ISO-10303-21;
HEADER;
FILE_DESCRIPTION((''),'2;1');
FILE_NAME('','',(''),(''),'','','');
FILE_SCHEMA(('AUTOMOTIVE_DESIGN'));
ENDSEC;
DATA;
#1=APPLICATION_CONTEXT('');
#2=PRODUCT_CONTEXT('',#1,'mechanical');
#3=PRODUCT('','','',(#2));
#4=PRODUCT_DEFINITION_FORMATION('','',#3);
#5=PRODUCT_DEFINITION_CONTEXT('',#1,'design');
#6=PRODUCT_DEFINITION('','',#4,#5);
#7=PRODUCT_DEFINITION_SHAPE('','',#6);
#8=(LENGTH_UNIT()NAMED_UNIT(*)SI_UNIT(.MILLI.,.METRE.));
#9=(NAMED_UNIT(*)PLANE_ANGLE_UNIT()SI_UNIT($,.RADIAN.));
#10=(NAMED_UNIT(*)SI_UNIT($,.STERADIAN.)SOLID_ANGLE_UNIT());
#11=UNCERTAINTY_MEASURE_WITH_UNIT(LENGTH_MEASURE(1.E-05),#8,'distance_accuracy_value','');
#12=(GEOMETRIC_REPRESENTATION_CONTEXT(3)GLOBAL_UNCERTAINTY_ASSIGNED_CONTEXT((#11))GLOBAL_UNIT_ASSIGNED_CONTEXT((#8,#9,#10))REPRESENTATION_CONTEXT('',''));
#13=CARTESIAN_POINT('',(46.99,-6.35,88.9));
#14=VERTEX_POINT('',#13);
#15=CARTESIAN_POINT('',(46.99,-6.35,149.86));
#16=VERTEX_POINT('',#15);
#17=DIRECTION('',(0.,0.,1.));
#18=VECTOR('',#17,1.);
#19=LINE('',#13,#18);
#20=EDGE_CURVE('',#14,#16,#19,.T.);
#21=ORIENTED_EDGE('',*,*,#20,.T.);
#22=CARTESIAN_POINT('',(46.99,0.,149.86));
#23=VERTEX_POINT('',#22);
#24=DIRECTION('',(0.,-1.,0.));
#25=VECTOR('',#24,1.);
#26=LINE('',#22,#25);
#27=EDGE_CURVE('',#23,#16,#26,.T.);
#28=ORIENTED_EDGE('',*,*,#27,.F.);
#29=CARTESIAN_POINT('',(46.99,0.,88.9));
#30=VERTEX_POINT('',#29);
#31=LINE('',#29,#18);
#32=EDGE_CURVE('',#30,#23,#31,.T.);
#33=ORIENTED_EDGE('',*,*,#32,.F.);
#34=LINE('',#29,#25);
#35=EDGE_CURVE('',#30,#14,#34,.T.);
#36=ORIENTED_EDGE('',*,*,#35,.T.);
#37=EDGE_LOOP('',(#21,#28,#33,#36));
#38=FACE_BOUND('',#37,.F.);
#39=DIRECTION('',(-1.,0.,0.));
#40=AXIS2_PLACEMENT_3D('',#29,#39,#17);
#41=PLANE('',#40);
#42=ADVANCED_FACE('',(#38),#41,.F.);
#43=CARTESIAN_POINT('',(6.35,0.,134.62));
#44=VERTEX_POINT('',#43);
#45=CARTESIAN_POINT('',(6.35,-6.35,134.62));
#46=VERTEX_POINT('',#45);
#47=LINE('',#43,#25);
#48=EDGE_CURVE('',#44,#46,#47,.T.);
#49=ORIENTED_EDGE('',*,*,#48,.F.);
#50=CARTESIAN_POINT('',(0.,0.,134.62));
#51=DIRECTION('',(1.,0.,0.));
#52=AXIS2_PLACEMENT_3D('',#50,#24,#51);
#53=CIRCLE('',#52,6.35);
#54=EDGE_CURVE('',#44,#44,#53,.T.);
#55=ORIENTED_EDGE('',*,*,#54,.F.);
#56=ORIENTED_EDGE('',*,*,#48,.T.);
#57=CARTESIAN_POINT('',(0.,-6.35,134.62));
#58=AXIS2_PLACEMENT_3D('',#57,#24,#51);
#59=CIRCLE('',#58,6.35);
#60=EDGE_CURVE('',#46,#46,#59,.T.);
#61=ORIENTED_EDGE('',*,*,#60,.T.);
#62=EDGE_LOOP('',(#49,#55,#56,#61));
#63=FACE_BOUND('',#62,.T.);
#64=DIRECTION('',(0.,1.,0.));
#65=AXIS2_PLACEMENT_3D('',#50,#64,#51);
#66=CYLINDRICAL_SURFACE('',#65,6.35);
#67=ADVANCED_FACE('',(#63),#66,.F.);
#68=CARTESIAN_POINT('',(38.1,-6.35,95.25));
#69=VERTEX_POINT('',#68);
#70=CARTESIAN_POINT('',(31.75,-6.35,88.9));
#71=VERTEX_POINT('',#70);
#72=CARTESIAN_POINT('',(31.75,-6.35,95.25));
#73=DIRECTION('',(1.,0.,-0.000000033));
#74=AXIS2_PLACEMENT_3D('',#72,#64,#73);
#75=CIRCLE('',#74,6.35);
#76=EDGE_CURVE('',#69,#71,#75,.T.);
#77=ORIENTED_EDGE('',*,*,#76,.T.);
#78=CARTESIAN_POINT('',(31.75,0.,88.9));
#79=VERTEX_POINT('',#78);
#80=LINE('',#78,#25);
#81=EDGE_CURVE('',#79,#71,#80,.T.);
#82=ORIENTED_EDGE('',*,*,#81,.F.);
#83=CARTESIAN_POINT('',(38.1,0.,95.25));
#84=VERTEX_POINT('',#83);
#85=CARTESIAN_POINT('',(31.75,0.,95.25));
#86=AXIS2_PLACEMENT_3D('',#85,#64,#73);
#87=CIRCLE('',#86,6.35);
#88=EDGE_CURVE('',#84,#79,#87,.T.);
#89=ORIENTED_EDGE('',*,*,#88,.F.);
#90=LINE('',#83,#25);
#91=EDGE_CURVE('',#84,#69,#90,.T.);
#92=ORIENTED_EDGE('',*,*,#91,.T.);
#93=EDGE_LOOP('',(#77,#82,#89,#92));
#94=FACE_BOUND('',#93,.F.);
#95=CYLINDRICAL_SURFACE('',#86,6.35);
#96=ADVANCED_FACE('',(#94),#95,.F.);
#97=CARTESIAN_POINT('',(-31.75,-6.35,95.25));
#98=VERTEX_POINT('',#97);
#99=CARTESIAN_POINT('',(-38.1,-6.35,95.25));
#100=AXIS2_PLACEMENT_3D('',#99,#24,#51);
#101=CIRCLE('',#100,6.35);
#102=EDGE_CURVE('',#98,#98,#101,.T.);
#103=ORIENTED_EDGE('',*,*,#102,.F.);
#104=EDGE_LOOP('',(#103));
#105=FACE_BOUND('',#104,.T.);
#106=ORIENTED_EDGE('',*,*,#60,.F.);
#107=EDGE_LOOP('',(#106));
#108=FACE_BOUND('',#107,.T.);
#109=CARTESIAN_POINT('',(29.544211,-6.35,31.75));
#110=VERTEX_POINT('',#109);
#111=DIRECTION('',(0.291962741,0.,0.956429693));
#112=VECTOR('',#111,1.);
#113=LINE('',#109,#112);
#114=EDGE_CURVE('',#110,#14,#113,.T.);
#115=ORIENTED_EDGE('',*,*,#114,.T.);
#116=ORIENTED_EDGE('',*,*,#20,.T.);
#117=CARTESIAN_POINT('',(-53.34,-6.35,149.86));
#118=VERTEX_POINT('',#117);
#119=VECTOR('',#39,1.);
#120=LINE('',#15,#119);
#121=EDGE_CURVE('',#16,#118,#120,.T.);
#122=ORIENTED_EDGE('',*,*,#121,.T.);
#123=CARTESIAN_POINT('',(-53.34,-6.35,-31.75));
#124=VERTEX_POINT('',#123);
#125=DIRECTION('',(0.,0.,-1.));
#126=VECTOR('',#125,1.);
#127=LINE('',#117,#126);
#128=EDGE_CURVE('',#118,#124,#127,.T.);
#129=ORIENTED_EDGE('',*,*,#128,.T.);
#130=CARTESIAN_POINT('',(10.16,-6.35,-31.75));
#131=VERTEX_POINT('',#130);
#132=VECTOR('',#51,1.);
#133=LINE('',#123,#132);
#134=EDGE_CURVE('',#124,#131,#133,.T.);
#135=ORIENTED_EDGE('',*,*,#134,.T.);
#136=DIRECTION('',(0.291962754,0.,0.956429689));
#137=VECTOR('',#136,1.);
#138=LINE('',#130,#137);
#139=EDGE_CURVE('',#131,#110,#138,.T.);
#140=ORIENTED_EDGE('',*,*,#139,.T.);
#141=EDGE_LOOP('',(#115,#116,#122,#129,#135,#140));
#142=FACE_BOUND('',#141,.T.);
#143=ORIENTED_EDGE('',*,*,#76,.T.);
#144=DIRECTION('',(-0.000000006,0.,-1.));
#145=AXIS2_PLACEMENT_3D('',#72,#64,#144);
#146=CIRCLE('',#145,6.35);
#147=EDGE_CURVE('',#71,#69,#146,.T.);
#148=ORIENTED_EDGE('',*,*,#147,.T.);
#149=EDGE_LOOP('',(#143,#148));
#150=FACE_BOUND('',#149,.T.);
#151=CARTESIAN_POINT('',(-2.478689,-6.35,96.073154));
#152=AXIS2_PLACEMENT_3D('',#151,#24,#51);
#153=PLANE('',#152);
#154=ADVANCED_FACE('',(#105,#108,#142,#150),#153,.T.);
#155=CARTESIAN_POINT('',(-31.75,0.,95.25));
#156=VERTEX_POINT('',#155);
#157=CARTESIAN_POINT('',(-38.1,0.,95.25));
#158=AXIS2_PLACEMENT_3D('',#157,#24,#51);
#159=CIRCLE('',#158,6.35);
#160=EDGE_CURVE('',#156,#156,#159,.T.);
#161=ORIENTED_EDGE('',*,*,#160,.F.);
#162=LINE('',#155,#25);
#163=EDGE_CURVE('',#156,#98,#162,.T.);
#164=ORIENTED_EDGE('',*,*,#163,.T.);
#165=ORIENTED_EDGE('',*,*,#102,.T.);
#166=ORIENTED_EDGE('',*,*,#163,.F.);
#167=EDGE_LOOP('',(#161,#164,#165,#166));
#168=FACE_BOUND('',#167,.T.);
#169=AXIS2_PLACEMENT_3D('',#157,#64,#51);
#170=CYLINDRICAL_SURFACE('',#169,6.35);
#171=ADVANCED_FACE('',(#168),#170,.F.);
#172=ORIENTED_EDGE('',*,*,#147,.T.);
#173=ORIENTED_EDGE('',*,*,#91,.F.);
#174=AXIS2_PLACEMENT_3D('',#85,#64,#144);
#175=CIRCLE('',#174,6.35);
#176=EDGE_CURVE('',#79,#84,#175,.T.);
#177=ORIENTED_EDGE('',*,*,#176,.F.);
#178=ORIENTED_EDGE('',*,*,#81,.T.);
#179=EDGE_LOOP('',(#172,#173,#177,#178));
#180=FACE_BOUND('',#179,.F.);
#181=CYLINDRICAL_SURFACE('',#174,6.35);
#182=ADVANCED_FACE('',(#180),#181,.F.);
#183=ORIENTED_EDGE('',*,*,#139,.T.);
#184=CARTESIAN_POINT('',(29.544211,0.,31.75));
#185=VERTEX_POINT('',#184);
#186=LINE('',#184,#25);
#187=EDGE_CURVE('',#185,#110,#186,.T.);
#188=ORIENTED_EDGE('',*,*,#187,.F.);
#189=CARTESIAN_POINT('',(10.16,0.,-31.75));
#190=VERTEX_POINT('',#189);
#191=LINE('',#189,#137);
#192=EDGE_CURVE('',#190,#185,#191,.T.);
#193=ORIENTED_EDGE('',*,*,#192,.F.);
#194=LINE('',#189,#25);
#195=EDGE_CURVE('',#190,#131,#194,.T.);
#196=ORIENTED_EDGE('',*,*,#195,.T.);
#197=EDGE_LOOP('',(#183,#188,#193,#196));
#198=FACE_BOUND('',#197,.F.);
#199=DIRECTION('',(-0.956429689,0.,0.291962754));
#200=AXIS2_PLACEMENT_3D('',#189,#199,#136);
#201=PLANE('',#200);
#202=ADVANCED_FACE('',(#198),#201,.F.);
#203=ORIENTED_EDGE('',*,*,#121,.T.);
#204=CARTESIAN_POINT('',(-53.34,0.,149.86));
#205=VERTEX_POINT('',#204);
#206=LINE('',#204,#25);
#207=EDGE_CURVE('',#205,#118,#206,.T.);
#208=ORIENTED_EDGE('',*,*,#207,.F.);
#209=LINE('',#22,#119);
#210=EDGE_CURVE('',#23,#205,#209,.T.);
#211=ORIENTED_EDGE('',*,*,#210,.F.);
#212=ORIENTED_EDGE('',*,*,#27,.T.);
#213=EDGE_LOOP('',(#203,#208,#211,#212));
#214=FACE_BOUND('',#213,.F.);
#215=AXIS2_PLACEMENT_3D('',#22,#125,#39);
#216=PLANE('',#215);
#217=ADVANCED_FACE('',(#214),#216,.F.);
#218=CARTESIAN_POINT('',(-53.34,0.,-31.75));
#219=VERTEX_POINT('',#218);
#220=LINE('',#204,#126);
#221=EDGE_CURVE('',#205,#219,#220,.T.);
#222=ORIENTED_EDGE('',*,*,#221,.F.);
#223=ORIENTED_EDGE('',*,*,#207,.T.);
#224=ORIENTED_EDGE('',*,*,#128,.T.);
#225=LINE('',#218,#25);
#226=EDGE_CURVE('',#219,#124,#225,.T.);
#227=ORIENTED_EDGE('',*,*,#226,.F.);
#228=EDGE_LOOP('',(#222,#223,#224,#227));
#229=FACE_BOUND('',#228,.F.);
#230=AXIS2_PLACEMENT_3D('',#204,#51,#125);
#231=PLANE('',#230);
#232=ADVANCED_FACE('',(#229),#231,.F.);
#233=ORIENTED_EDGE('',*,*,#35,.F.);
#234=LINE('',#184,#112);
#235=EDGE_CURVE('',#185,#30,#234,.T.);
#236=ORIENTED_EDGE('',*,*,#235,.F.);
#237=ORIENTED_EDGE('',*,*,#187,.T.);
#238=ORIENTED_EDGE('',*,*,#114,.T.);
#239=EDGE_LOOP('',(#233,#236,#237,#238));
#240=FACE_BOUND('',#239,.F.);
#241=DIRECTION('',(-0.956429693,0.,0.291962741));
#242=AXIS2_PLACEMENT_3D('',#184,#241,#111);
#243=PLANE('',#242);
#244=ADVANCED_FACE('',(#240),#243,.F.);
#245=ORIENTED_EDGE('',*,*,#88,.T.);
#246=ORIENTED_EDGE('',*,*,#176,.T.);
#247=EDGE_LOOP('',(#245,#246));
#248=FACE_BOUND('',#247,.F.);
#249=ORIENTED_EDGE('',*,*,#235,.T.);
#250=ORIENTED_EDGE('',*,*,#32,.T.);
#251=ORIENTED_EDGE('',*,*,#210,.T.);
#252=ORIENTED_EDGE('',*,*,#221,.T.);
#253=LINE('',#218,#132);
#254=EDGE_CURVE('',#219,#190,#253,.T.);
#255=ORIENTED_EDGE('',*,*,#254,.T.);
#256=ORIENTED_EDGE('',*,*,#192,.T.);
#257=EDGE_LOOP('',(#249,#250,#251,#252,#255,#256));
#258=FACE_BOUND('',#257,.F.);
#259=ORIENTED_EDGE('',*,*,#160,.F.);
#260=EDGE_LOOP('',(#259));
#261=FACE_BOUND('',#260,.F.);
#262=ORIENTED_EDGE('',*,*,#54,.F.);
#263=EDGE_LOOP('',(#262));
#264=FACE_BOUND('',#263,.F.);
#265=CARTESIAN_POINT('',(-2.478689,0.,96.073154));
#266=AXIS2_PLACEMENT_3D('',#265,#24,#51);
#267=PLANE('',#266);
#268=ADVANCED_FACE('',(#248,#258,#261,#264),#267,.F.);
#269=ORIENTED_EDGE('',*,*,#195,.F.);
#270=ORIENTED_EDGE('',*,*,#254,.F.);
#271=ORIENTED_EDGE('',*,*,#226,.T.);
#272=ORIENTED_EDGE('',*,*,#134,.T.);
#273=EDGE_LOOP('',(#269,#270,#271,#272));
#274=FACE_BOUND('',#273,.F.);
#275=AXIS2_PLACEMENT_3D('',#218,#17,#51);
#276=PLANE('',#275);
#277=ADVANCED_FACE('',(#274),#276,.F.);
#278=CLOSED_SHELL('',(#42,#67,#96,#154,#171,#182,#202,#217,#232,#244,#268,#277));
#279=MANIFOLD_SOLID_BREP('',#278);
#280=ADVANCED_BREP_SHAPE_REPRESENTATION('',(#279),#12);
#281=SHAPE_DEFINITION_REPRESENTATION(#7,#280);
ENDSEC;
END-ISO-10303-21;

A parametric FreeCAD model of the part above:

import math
import FreeCAD as App
import Part
import Sketcher
Q = App.Units.Quantity


def add_polygon(sketch, points):
    """Adds a closed chain of lines whose ends are joined by coincident constraints."""
    first, n = sketch.GeometryCount, len(points)
    for a, b in zip(points, points[1:] + points[:1]):
        sketch.addGeometry(Part.LineSegment(App.Vector(*a, 0), App.Vector(*b, 0)), False)
    for i in range(n):
        sketch.addConstraint(Sketcher.Constraint("Coincident", first + i, 2, first + (i + 1) % n, 1))

doc = App.newDocument("Part")
body = doc.addObject("PartDesign::Body", "Body")

# Sketch on XZ plane
sketch1 = doc.addObject("Sketcher::SketchObject", "Sketch")
body.addObject(sketch1)
sketch1.AttachmentSupport = (doc.XZ_Plane, [""])
sketch1.MapMode = "FlatFace"
add_polygon(sketch1, [(10, -32), (30, 32), (47, 89), (47, 150), (-53, 150), (-53, -32)])  # lines 0-5
sketch1.addGeometry(Part.Circle(App.Vector(-38, 95, 0), App.Vector(0, 0, 1), 6), False)  # 6
sketch1.addGeometry(Part.ArcOfCircle(Part.Circle(App.Vector(32, 95, 0), App.Vector(0, 0, 1), 6), math.radians(0), math.radians(270)), False)  # 7
sketch1.addGeometry(Part.ArcOfCircle(Part.Circle(App.Vector(32, 95, 0), App.Vector(0, 0, 1), 6), math.radians(-90), math.radians(0)), False)  # 8
sketch1.addGeometry(Part.Circle(App.Vector(0, 135, 0), App.Vector(0, 0, 1), 6), False)  # 9
sketch1.addConstraint([
    Sketcher.Constraint("Tangent", 7, 1, 8, 2),
    Sketcher.Constraint("Coincident", 8, 1, 7, 2),
    Sketcher.Constraint("Vertical", 2),
    Sketcher.Constraint("Horizontal", 3),
    Sketcher.Constraint("Vertical", 4),
    Sketcher.Constraint("Horizontal", 5),
    Sketcher.Constraint("Equal", 6, 7),
    Sketcher.Constraint("Equal", 8, 9),
    Sketcher.Constraint("PointOnObject", 9, 3, -2),
    Sketcher.Constraint("Parallel", 0, 1),
    Sketcher.Constraint("Horizontal", 6, 3, 7, 3),
    Sketcher.Constraint("Horizontal", 8, 3, 7, 1),
    Sketcher.Constraint("Horizontal", 1, 2, 8, 1),
    Sketcher.Constraint("Vertical", 7, 3, 8, 1),
    Sketcher.Constraint("Diameter", 6, Q("0.5 in")),
    Sketcher.Constraint("DistanceX", 5, 1, 5, 2, Q("2.5 in")),
    Sketcher.Constraint("DistanceY", 2, 1, 2, 2, Q("2.4 in")),
    Sketcher.Constraint("DistanceY", 4, 2, 6, 3, Q("5 in")),
    Sketcher.Constraint("DistanceX", 3, 2, 3, 1, Q("3.95 in")),
    Sketcher.Constraint("DistanceX", 6, 3, -1, 1, Q("1.5 in")),
    Sketcher.Constraint("DistanceY", -1, 1, 9, 3, Q("5.3 in")),
    Sketcher.Constraint("DistanceY", -1, 1, 1, 2, Q("3.5 in")),
    Sketcher.Constraint("DistanceX", 3, 2, -1, 1, Q("2.1 in")),
    Sketcher.Constraint("DistanceX", -1, 1, 7, 1, Q("1.5 in")),
    Sketcher.Constraint("DistanceY", 0, 2, 7, 3, Q("2.5 in")),
])
pad1 = doc.addObject("PartDesign::Pad", "Pad")
body.addObject(pad1)
pad1.Profile = sketch1
pad1.Length = Q("0.25 in")

doc.recompute()
